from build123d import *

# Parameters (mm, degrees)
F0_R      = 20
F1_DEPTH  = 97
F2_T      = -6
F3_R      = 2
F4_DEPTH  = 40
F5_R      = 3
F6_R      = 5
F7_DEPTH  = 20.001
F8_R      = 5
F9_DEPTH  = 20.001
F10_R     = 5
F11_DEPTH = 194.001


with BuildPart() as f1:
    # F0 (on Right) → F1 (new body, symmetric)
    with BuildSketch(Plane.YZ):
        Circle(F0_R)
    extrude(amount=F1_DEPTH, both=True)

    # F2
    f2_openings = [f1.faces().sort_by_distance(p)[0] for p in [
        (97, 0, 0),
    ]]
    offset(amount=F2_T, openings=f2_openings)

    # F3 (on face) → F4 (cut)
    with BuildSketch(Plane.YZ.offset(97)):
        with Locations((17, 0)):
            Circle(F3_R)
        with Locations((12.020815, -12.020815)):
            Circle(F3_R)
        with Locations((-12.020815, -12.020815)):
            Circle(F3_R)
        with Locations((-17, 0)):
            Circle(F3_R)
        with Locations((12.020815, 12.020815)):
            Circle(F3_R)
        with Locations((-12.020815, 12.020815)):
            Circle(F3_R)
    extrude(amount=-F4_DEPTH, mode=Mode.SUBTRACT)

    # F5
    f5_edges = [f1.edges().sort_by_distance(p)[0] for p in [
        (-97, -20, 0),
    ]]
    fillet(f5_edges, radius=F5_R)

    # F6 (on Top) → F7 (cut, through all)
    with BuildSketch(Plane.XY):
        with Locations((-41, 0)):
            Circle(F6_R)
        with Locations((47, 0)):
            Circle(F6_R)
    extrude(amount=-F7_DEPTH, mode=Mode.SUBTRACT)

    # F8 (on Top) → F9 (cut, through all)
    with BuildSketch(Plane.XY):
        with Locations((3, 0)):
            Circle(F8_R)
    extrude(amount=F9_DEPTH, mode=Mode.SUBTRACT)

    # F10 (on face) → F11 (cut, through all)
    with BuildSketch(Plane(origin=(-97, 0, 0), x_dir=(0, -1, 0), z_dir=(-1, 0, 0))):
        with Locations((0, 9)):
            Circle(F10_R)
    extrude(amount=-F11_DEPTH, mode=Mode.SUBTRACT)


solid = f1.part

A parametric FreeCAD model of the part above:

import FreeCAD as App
import Part
import Sketcher
from FreeCAD import Vector
Q = App.Units.Quantity


def edges_at(feature, points):
    """Names of the edges that pass closest to the given points."""
    edges = feature.Shape.Edges
    near = lambda p: min(range(len(edges)), key=lambda i: edges[i].distToShape(Part.Vertex(*p))[0])
    return sorted({f"Edge{near(p) + 1}" for p in points})


def faces_at(feature, points):
    """Names of the faces that lie closest to the given points."""
    faces = feature.Shape.Faces
    near = lambda p: min(range(len(faces)), key=lambda i: faces[i].distToShape(Part.Vertex(*p))[0])
    return sorted({f"Face{near(p) + 1}" for p in points})

doc = App.newDocument("Part")
body = doc.addObject("PartDesign::Body", "Body")

# Sketch on YZ plane
sketch1 = body.newObject("Sketcher::SketchObject", "Sketch")
sketch1.AttachmentSupport = (doc.getObject("YZ_Plane"), [""])
sketch1.MapMode = "FlatFace"
sketch1.addGeometry(Part.Circle(Vector(0, 0, 0), Vector(0, 0, 1), 20), False)
sketch1.addConstraint(Sketcher.Constraint("Coincident", 0, 3, -1, 1))
sketch1.addConstraint(Sketcher.Constraint("Diameter", 0, Q("40 mm")))
pad1 = body.newObject("PartDesign::Pad", "Pad")
pad1.Profile = sketch1
pad1.Length = 194
pad1.Midplane = True
doc.recompute()

thickness = body.newObject("PartDesign::Thickness", "Thickness")
thickness.Base = (pad1, faces_at(pad1, [(97, 0, 0)]))
thickness.Value = 6
thickness.Reversed = True
thickness.Join = "Arc"

# Sketch on YZ plane
sketch2 = body.newObject("Sketcher::SketchObject", "Sketch001")
sketch2.AttachmentSupport = (doc.getObject("YZ_Plane"), [""])
sketch2.MapMode = "FlatFace"
sketch2.AttachmentOffset = App.Placement(Vector(0, 0, 97), App.Rotation())
sketch2.addGeometry(Part.Circle(Vector(17, 0, 0), Vector(0, 0, 1), 2), False)
sketch2.addGeometry(Part.Circle(Vector(12, -12, 0), Vector(0, 0, 1), 2), False)
sketch2.addGeometry(Part.Circle(Vector(-12, -12, 0), Vector(0, 0, 1), 2), False)
sketch2.addGeometry(Part.Circle(Vector(-17, 0, 0), Vector(0, 0, 1), 2), False)
sketch2.addGeometry(Part.Circle(Vector(12, 12, 0), Vector(0, 0, 1), 2), False)
sketch2.addGeometry(Part.Circle(Vector(-12, 12, 0), Vector(0, 0, 1), 2), False)
sketch2.addConstraint(Sketcher.Constraint("Equal", 0, 1))
sketch2.addConstraint(Sketcher.Constraint("Equal", 1, 2))
sketch2.addConstraint(Sketcher.Constraint("Equal", 2, 3))
sketch2.addConstraint(Sketcher.Constraint("Equal", 3, 4))
sketch2.addConstraint(Sketcher.Constraint("Equal", 4, 5))
sketch2.addConstraint(Sketcher.Constraint("Symmetric", 0, 3, 3, 3, -1, 1))
sketch2.addConstraint(Sketcher.Constraint("Symmetric", 2, 3, 4, 3, -1, 1))
sketch2.addConstraint(Sketcher.Constraint("Symmetric", 1, 3, 5, 3, -1, 1))
sketch2.addConstraint(Sketcher.Constraint("Symmetric", 1, 3, 2, 3, -2))
sketch2.addConstraint(Sketcher.Constraint("PointOnObject", 0, 3, -1))
sketch2.addConstraint(Sketcher.Constraint("Diameter", 0, Q("4 mm")))
sketch2.addConstraint(Sketcher.Constraint("DistanceX", -1, 1, 0, 3, Q("17 mm")))
sketch2.addConstraint(Sketcher.Constraint("DistanceX", 2, 3, 1, 3, Q("24.04163 mm")))
sketch2.addConstraint(Sketcher.Constraint("DistanceY", 1, 3, 4, 3, Q("24.04163 mm")))
pocket1 = body.newObject("PartDesign::Pocket", "Pocket")
pocket1.Profile = sketch2
pocket1.Length = 40
doc.recompute()

fillet = body.newObject("PartDesign::Fillet", "Fillet")
fillet.Base = (pocket1, edges_at(pocket1, [(-97, -20, 0)]))
fillet.Radius = 3

# Sketch on XY plane
sketch3 = body.newObject("Sketcher::SketchObject", "Sketch002")
sketch3.AttachmentSupport = (doc.getObject("XY_Plane"), [""])
sketch3.MapMode = "FlatFace"
sketch3.addGeometry(Part.Circle(Vector(-41, 0, 0), Vector(0, 0, 1), 5), False)
sketch3.addGeometry(Part.Circle(Vector(47, 0, 0), Vector(0, 0, 1), 5), False)
sketch3.addConstraint(Sketcher.Constraint("Equal", 0, 1))
sketch3.addConstraint(Sketcher.Constraint("PointOnObject", 0, 3, -1))
sketch3.addConstraint(Sketcher.Constraint("PointOnObject", 1, 3, -1))
sketch3.addConstraint(Sketcher.Constraint("Diameter", 0, Q("10 mm")))
sketch3.addConstraint(Sketcher.Constraint("DistanceX", 0, 3, -1, 1, Q("41 mm")))
sketch3.addConstraint(Sketcher.Constraint("DistanceX", -1, 1, 1, 3, Q("47 mm")))
pocket2 = body.newObject("PartDesign::Pocket", "Pocket001")
pocket2.Profile = sketch3
pocket2.Type = "ThroughAll"

# Sketch on XY plane
sketch4 = body.newObject("Sketcher::SketchObject", "Sketch003")
sketch4.AttachmentSupport = (doc.getObject("XY_Plane"), [""])
sketch4.MapMode = "FlatFace"
sketch4.addGeometry(Part.Circle(Vector(3, 0, 0), Vector(0, 0, 1), 5), False)
sketch4.addConstraint(Sketcher.Constraint("PointOnObject", 0, 3, -1))
sketch4.addConstraint(Sketcher.Constraint("Diameter", 0, Q("10 mm")))
sketch4.addConstraint(Sketcher.Constraint("DistanceX", -1, 1, 0, 3, Q("3 mm")))
pocket3 = body.newObject("PartDesign::Pocket", "Pocket002")
pocket3.Profile = sketch4
pocket3.Type = "ThroughAll"
pocket3.Reversed = True

# Sketch on YZ plane
sketch5 = body.newObject("Sketcher::SketchObject", "Sketch004")
sketch5.AttachmentSupport = (doc.getObject("YZ_Plane"), [""])
sketch5.MapMode = "FlatFace"
sketch5.AttachmentOffset = App.Placement(Vector(0, 0, -97), App.Rotation())
sketch5.addGeometry(Part.Circle(Vector(0, 9, 0), Vector(0, 0, 1), 5), False)
sketch5.addConstraint(Sketcher.Constraint("PointOnObject", 0, 3, -2))
sketch5.addConstraint(Sketcher.Constraint("Diameter", 0, Q("10 mm")))
sketch5.addConstraint(Sketcher.Constraint("DistanceY", -1, 1, 0, 3, Q("9 mm")))
pocket4 = body.newObject("PartDesign::Pocket", "Pocket003")
pocket4.Profile = sketch5
pocket4.Type = "ThroughAll"
pocket4.Reversed = True

doc.recompute()
